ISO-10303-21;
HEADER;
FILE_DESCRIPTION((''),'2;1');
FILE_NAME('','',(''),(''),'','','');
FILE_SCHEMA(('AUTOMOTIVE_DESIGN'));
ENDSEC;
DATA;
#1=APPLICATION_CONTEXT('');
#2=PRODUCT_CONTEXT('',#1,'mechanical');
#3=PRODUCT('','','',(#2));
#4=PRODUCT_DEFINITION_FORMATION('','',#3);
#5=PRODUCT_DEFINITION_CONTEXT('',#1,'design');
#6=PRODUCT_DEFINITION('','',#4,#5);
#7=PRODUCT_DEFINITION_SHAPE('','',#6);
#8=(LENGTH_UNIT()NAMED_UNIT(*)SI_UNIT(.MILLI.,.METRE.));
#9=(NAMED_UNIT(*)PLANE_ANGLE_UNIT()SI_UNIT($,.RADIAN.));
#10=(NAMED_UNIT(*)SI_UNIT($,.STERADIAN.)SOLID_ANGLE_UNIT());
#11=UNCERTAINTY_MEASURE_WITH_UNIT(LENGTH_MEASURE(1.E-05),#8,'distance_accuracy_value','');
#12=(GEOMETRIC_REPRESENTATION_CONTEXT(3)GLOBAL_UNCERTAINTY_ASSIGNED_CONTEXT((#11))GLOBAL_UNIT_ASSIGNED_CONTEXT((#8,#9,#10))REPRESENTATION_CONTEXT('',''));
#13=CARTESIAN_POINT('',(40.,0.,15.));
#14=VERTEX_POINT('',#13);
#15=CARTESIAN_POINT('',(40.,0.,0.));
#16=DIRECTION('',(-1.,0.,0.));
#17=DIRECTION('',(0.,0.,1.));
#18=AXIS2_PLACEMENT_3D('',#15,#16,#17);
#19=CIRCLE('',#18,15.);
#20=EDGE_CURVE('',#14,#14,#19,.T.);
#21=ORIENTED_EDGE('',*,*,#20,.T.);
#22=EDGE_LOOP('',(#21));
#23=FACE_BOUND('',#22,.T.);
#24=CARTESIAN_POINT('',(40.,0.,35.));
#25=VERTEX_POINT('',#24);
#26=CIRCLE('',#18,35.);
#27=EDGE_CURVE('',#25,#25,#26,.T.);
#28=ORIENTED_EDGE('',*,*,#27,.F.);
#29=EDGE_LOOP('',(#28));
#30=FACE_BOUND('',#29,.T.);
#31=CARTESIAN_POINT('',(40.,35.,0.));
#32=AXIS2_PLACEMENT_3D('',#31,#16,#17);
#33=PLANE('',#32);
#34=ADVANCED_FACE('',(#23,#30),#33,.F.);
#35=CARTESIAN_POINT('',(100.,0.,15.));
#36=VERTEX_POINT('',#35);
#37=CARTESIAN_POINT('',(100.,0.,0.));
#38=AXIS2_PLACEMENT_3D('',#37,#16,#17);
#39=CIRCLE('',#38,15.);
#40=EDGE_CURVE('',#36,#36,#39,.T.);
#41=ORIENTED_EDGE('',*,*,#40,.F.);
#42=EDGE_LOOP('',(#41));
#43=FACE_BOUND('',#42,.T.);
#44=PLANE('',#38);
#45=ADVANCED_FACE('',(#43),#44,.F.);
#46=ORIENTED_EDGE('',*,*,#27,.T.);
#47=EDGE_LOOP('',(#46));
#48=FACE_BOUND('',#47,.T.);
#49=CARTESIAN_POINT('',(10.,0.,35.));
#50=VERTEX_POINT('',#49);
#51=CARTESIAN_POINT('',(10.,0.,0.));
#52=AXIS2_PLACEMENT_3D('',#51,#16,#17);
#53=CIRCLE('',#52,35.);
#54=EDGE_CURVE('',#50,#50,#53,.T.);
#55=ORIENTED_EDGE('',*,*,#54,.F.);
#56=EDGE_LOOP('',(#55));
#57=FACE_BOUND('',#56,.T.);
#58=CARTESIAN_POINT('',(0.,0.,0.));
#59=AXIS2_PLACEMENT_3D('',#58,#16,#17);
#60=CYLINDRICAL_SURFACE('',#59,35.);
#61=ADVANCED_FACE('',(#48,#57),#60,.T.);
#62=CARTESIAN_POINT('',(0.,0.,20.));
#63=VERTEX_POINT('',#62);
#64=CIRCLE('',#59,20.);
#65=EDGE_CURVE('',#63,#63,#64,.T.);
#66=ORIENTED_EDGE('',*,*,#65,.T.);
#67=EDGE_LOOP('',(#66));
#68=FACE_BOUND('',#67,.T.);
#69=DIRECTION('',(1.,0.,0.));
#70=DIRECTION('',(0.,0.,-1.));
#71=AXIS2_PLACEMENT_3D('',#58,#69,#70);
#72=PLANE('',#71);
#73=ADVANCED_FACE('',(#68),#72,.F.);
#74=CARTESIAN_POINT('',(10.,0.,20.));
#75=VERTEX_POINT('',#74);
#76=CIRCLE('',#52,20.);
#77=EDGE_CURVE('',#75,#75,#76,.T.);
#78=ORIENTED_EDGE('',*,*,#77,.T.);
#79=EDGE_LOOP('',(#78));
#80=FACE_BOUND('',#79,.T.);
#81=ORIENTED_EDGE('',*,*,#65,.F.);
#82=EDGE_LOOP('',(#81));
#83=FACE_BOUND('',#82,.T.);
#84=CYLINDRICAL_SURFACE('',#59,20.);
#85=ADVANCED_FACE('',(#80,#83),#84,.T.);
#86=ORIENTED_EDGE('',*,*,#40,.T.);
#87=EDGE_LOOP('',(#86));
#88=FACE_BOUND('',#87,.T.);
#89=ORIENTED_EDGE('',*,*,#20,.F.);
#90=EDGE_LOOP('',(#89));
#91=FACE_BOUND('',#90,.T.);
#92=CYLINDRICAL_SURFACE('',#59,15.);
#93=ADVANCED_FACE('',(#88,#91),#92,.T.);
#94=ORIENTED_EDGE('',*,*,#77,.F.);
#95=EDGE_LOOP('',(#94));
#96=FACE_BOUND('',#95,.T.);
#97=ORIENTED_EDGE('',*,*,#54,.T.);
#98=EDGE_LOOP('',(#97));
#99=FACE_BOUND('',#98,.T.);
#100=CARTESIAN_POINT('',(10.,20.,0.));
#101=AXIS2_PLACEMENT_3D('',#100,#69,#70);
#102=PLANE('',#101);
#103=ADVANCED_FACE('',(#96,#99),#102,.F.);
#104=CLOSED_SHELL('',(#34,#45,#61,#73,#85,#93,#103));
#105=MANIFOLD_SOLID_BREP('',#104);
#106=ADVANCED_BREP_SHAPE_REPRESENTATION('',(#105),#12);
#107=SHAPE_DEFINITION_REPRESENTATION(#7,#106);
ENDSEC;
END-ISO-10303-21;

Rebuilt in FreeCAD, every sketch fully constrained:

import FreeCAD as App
import Part
import Sketcher


def add_polygon(sketch, points):
    """Adds a closed chain of lines whose ends are joined by coincident constraints."""
    first, n = sketch.GeometryCount, len(points)
    for a, b in zip(points, points[1:] + points[:1]):
        sketch.addGeometry(Part.LineSegment(App.Vector(*a, 0), App.Vector(*b, 0)), False)
    for i in range(n):
        sketch.addConstraint(Sketcher.Constraint("Coincident", first + i, 2, first + (i + 1) % n, 1))

doc = App.newDocument("Part")
params = doc.addObject("Spreadsheet::Sheet", "Params")
for row, (alias, value) in enumerate([
    ("sketch1_width", "100 mm"),
    ("sketch1_width2", "60 mm"),
    ("sketch1_width3", "30 mm"),
    ("sketch1_height", "15 mm"),
    ("sketch1_height2", "20 mm"),
    ("revolution_angle", "360 deg"),
], start=1):
    params.set(f"A{row}", alias)
    params.set(f"B{row}", "=" + value)
    params.setAlias(f"B{row}", alias)

body = doc.addObject("PartDesign::Body", "Body")

# Sketch on XY plane
sketch1 = body.newObject("Sketcher::SketchObject", "Sketch")
sketch1.AttachmentSupport = (doc.getObject("XY_Plane"), [""])
sketch1.MapMode = "FlatFace"
add_polygon(sketch1, [(0, 0), (100, 0), (100, 15), (40, 15), (40, 35), (10, 35), (10, 20), (0, 20)])  # lines 0-7
sketch1.addConstraint(Sketcher.Constraint("Horizontal", 0))
sketch1.addConstraint(Sketcher.Constraint("Vertical", 1))
sketch1.addConstraint(Sketcher.Constraint("Horizontal", 2))
sketch1.addConstraint(Sketcher.Constraint("Vertical", 3))
sketch1.addConstraint(Sketcher.Constraint("Horizontal", 4))
sketch1.addConstraint(Sketcher.Constraint("Vertical", 5))
sketch1.addConstraint(Sketcher.Constraint("Horizontal", 6))
sketch1.addConstraint(Sketcher.Constraint("Vertical", 7))
sketch1.addConstraint(Sketcher.Constraint("Coincident", 7, 2, -1, 1))
sketch1.addConstraint(Sketcher.Constraint("Equal", 1, 5))
sketch1.addConstraint(Sketcher.Constraint("DistanceX", 0, 1, 0, 2, 100.0))
sketch1.addConstraint(Sketcher.Constraint("DistanceX", 2, 2, 2, 1, 60.0))
sketch1.addConstraint(Sketcher.Constraint("DistanceX", 4, 2, 4, 1, 30.0))
sketch1.addConstraint(Sketcher.Constraint("DistanceY", 1, 1, 1, 2, 15.0))
sketch1.addConstraint(Sketcher.Constraint("DistanceY", 3, 1, 3, 2, 20.0))
sketch1.setExpression("Constraints[18]", "Params.sketch1_width")
sketch1.setExpression("Constraints[19]", "Params.sketch1_width2")
sketch1.setExpression("Constraints[20]", "Params.sketch1_width3")
sketch1.setExpression("Constraints[21]", "Params.sketch1_height")
sketch1.setExpression("Constraints[22]", "Params.sketch1_height2")
revolution = body.newObject("PartDesign::Revolution", "Revolution")
revolution.Profile = sketch1
revolution.ReferenceAxis = (sketch1, ["H_Axis"])
revolution.setExpression("Angle", "Params.revolution_angle")

doc.recompute()
